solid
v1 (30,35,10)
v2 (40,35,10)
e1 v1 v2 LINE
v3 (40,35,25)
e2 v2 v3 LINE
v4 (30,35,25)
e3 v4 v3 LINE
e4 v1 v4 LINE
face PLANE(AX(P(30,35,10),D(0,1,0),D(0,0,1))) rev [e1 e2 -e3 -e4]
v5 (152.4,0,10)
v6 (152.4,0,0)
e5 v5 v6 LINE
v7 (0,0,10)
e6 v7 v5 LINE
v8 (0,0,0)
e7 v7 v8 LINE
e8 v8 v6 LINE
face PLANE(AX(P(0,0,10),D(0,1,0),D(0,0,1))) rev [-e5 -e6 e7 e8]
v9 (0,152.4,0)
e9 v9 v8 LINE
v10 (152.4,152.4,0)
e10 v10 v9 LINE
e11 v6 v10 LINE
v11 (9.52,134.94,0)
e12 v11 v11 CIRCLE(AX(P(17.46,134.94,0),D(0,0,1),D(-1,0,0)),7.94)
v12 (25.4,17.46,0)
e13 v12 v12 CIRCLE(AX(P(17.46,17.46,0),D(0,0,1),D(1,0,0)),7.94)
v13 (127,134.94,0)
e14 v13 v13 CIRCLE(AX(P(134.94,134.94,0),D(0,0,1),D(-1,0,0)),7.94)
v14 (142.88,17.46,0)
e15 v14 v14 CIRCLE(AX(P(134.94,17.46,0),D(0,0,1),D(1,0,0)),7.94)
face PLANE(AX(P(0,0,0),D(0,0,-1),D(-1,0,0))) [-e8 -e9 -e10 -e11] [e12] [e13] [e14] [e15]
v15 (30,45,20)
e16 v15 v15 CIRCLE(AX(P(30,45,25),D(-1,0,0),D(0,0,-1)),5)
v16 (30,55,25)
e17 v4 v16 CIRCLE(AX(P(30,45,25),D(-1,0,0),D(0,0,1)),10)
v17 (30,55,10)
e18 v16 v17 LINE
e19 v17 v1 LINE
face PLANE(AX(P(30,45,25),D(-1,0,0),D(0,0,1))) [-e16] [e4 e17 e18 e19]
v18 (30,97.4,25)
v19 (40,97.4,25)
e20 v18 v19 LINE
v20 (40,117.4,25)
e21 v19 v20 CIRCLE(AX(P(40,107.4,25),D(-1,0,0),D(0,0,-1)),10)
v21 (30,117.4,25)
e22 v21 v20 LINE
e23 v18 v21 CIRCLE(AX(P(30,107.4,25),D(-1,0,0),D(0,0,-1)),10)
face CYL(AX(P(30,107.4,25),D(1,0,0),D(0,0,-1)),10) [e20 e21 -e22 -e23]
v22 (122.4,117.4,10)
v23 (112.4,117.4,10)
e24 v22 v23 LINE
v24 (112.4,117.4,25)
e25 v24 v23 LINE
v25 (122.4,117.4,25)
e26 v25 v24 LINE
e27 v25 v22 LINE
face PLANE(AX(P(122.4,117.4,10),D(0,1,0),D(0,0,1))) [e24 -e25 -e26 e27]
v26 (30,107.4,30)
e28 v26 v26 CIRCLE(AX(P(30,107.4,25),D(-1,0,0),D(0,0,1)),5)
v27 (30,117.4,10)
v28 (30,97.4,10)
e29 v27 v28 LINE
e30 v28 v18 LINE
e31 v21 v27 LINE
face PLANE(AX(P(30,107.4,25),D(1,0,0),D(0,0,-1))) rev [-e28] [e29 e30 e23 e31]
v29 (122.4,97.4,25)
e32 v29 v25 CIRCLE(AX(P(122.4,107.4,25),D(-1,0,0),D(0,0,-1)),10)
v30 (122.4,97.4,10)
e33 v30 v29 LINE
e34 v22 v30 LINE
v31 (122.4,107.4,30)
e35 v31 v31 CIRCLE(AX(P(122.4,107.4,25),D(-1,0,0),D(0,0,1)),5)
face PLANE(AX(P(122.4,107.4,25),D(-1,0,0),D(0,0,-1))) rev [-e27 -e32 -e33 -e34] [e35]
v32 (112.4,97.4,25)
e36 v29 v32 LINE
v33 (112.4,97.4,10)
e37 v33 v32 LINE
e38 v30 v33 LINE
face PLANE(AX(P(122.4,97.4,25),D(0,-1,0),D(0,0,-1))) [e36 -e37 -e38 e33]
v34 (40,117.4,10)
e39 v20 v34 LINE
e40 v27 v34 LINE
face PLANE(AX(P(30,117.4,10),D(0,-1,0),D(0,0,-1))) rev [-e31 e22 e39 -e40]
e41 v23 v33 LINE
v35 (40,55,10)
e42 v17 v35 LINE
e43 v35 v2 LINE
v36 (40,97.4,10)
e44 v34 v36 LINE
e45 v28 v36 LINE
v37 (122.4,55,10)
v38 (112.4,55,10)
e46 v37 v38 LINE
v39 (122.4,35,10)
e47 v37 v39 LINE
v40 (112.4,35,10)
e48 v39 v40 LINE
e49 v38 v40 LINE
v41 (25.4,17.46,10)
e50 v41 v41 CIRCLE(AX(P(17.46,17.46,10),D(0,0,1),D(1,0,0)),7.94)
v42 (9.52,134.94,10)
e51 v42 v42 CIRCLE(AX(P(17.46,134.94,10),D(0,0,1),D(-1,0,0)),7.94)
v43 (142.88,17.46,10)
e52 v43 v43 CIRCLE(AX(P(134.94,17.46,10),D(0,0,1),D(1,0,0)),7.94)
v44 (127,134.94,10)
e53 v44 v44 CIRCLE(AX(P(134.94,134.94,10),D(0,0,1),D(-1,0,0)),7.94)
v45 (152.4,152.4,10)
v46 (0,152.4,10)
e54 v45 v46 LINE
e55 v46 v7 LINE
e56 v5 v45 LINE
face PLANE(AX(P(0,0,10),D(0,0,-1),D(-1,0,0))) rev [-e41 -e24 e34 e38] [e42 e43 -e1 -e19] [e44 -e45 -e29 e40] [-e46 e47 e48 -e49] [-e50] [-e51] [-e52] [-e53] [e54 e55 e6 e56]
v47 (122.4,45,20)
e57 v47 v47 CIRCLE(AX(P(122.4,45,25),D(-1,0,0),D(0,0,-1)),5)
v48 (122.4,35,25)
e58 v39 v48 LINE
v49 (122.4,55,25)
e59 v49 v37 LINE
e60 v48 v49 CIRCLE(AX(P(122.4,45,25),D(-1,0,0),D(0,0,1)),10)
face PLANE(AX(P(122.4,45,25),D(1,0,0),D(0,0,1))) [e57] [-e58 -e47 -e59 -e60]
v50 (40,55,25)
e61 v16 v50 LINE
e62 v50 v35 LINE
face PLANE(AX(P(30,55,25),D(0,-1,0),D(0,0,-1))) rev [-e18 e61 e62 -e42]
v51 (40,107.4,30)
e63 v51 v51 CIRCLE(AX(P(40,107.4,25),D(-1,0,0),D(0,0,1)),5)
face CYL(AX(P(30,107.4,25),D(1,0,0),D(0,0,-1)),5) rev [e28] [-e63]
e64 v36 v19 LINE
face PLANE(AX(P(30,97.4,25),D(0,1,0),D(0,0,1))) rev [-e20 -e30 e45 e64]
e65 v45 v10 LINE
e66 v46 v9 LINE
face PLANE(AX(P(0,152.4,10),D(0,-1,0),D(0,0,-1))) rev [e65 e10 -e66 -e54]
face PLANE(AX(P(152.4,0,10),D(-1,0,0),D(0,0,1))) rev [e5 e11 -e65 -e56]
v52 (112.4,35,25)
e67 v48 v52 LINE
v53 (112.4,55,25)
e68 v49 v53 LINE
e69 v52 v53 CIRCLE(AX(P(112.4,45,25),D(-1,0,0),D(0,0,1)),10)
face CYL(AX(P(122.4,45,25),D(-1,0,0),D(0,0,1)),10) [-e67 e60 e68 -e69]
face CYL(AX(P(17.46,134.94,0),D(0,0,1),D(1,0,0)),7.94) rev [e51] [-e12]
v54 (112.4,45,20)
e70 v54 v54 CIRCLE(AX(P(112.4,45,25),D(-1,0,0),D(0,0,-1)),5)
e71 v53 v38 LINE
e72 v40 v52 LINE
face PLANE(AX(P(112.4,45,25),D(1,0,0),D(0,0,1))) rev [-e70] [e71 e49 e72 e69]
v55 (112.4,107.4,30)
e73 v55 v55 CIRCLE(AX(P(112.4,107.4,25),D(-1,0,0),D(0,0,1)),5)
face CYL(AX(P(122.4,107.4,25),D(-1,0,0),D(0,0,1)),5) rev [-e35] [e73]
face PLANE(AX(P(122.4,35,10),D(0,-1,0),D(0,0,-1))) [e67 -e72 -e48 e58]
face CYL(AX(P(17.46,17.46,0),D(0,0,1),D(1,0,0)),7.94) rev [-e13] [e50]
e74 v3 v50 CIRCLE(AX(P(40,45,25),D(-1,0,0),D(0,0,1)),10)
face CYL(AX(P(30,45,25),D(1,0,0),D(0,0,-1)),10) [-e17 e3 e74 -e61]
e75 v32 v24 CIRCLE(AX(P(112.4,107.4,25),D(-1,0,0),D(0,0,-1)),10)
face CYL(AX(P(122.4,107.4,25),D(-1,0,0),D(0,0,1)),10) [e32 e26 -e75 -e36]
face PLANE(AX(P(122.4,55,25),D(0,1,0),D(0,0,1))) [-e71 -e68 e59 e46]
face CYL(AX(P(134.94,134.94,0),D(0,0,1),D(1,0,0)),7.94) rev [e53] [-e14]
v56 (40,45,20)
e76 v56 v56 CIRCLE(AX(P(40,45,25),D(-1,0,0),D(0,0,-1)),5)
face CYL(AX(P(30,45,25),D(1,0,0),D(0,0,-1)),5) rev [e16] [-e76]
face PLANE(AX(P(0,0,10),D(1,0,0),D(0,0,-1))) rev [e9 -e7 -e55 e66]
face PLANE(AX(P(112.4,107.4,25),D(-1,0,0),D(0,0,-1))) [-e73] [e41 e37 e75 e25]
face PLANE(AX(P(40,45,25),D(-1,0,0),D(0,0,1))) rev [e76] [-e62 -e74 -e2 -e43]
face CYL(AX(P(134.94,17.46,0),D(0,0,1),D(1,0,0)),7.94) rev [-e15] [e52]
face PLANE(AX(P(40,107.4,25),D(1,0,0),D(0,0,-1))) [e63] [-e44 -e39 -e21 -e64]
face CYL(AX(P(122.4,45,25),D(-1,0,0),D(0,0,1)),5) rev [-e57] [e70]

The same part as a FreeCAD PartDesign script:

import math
import FreeCAD as App
import Part
import Sketcher
from FreeCAD import Vector

doc = App.newDocument("Part")
body = doc.addObject("PartDesign::Body", "Body")

sketch1 = body.newObject("Sketcher::SketchObject", "Sketch")
sketch1.AttachmentSupport = (doc.getObject("XY_Plane"), [""])
sketch1.MapMode = "FlatFace"
sketch1.addGeometry(Part.LineSegment(Vector(0, 152.4, 0), Vector(0, 0, 0)), False)
sketch1.addGeometry(Part.LineSegment(Vector(0, 0, 0), Vector(152.4, 0, 0)), False)
sketch1.addGeometry(Part.LineSegment(Vector(152.4, 0, 0), Vector(152.4, 152.4, 0)), False)
sketch1.addGeometry(Part.LineSegment(Vector(152.4, 152.4, 0), Vector(0, 152.4, 0)), False)
sketch1.addConstraint(Sketcher.Constraint("Coincident", 0, 2, 1, 1))
sketch1.addConstraint(Sketcher.Constraint("Coincident", 1, 2, 2, 1))
sketch1.addConstraint(Sketcher.Constraint("Coincident", 2, 2, 3, 1))
sketch1.addConstraint(Sketcher.Constraint("Coincident", 3, 2, 0, 1))
sketch1.addConstraint(Sketcher.Constraint("Vertical", 0))
sketch1.addConstraint(Sketcher.Constraint("Horizontal", 1))
sketch1.addConstraint(Sketcher.Constraint("Vertical", 2))
sketch1.addConstraint(Sketcher.Constraint("Horizontal", 3))
sketch1.addConstraint(Sketcher.Constraint("Coincident", 0, 2, -1, 1))
sketch1.addConstraint(Sketcher.Constraint("Equal", 3, 0))
sketch1.addConstraint(Sketcher.Constraint("DistanceX", 1, 1, 1, 2, 152.4))
pad1 = body.newObject("PartDesign::Pad", "Pad")
pad1.Profile = sketch1
pad1.Length = 10

sketch2 = body.newObject("Sketcher::SketchObject", "Sketch001")
sketch2.AttachmentSupport = (doc.getObject("XY_Plane"), [""])
sketch2.MapMode = "FlatFace"
sketch2.AttachmentOffset = App.Placement(Vector(0, 0, 10), App.Rotation())
sketch2.addGeometry(Part.Circle(Vector(134.94, 17.46, 0), Vector(0, 0, 1), 7.94), False)
sketch2.addGeometry(Part.Circle(Vector(17.46, 17.46, 0), Vector(0, 0, 1), 7.94), False)
sketch2.addGeometry(Part.Circle(Vector(134.94, 134.94, 0), Vector(0, 0, 1), 7.94), False)
sketch2.addGeometry(Part.Circle(Vector(17.46, 134.94, 0), Vector(0, 0, 1), 7.94), False)
sketch2.addConstraint(Sketcher.Constraint("Equal", 0, 1))
sketch2.addConstraint(Sketcher.Constraint("Equal", 1, 2))
sketch2.addConstraint(Sketcher.Constraint("Equal", 2, 3))
sketch2.addConstraint(Sketcher.Constraint("Horizontal", 0, 3, 1, 3))
sketch2.addConstraint(Sketcher.Constraint("Horizontal", 2, 3, 3, 3))
sketch2.addConstraint(Sketcher.Constraint("Vertical", 0, 3, 2, 3))
sketch2.addConstraint(Sketcher.Constraint("Vertical", 1, 3, 3, 3))
sketch2.addConstraint(Sketcher.Constraint("Diameter", 0, 15.88))
sketch2.addConstraint(Sketcher.Constraint("DistanceX", -1, 1, 0, 3, 134.94))
sketch2.addConstraint(Sketcher.Constraint("DistanceY", -1, 1, 0, 3, 17.46))
sketch2.addConstraint(Sketcher.Constraint("DistanceX", -1, 1, 1, 3, 17.46))
sketch2.addConstraint(Sketcher.Constraint("DistanceY", -1, 1, 2, 3, 134.94))
pocket1 = body.newObject("PartDesign::Pocket", "Pocket")
pocket1.Profile = sketch2
pocket1.Type = "ThroughAll"

sketch3 = body.newObject("Sketcher::SketchObject", "Sketch002")
sketch3.AttachmentSupport = (doc.getObject("YZ_Plane"), [""])
sketch3.MapMode = "FlatFace"
sketch3.AttachmentOffset = App.Placement(Vector(0, 0, 40), App.Rotation())
sketch3.addGeometry(Part.LineSegment(Vector(117.4, 25, 0), Vector(117.4, 10, 0)), False)
sketch3.addGeometry(Part.LineSegment(Vector(117.4, 10, 0), Vector(97.4, 10, 0)), False)
sketch3.addGeometry(Part.LineSegment(Vector(97.4, 10, 0), Vector(97.4, 25, 0)), False)
sketch3.addGeometry(Part.ArcOfCircle(Part.Circle(Vector(107.4, 25, 0), Vector(0, 0, 1), 10), math.radians(0), math.radians(180)), False)
sketch3.addGeometry(Part.Circle(Vector(107.4, 25, 0), Vector(0, 0, 1), 5), False)
sketch3.addGeometry(Part.LineSegment(Vector(55, 25, 0), Vector(55, 10, 0)), False)
sketch3.addGeometry(Part.LineSegment(Vector(55, 10, 0), Vector(35, 10, 0)), False)
sketch3.addGeometry(Part.LineSegment(Vector(35, 10, 0), Vector(35, 25, 0)), False)
sketch3.addGeometry(Part.ArcOfCircle(Part.Circle(Vector(45, 25, 0), Vector(0, 0, 1), 10), math.radians(0), math.radians(180)), False)
sketch3.addGeometry(Part.Circle(Vector(45, 25, 0), Vector(0, 0, 1), 5), False)
sketch3.addConstraint(Sketcher.Constraint("Coincident", 0, 2, 1, 1))
sketch3.addConstraint(Sketcher.Constraint("Coincident", 1, 2, 2, 1))
sketch3.addConstraint(Sketcher.Constraint("Tangent", 2, 2, 3, 2))
sketch3.addConstraint(Sketcher.Constraint("Tangent", 3, 1, 0, 1))
sketch3.addConstraint(Sketcher.Constraint("Coincident", 5, 2, 6, 1))
sketch3.addConstraint(Sketcher.Constraint("Coincident", 6, 2, 7, 1))
sketch3.addConstraint(Sketcher.Constraint("Tangent", 7, 2, 8, 2))
sketch3.addConstraint(Sketcher.Constraint("Tangent", 8, 1, 5, 1))
sketch3.addConstraint(Sketcher.Constraint("Vertical", 0))
sketch3.addConstraint(Sketcher.Constraint("Horizontal", 1))
sketch3.addConstraint(Sketcher.Constraint("Vertical", 2))
sketch3.addConstraint(Sketcher.Constraint("Vertical", 5))
sketch3.addConstraint(Sketcher.Constraint("Horizontal", 6))
sketch3.addConstraint(Sketcher.Constraint("Vertical", 7))
sketch3.addConstraint(Sketcher.Constraint("Coincident", 4, 3, 3, 3))
sketch3.addConstraint(Sketcher.Constraint("Coincident", 9, 3, 8, 3))
sketch3.addConstraint(Sketcher.Constraint("Equal", 3, 8))
sketch3.addConstraint(Sketcher.Constraint("Equal", 4, 9))
sketch3.addConstraint(Sketcher.Constraint("Horizontal", 4, 3, 8, 3))
sketch3.addConstraint(Sketcher.Constraint("Horizontal", 1, 2, 5, 2))
sketch3.addConstraint(Sketcher.Constraint("Diameter", 4, 10.0))
sketch3.addConstraint(Sketcher.Constraint("Radius", 3, 10.0))
sketch3.addConstraint(Sketcher.Constraint("DistanceY", 0, 2, 0, 1, 15.0))
sketch3.addConstraint(Sketcher.Constraint("DistanceY", -1, 1, 3, 3, 25.0))
sketch3.addConstraint(Sketcher.Constraint("DistanceX", -1, 1, 8, 3, 45.0))
sketch3.addConstraint(Sketcher.Constraint("DistanceX", -1, 1, 3, 3, 107.4))
pad2 = body.newObject("PartDesign::Pad", "Pad001")
pad2.Profile = sketch3
pad2.Length = 10
pad2.Reversed = True
doc.recompute()

datumplane = body.newObject("PartDesign::Plane", "DatumPlane")
datumplane.AttachmentSupport = (doc.getObject("YZ_Plane"), [""])
datumplane.MapMode = "FlatFace"
datumplane.AttachmentOffset = App.Placement(Vector(0, 0, 76.2), App.Rotation())
mirrored = body.newObject("PartDesign::Mirrored", "Mirrored")
mirrored.Originals = [pad2]
mirrored.MirrorPlane = (datumplane, [""])
body.Tip = mirrored

doc.recompute()
